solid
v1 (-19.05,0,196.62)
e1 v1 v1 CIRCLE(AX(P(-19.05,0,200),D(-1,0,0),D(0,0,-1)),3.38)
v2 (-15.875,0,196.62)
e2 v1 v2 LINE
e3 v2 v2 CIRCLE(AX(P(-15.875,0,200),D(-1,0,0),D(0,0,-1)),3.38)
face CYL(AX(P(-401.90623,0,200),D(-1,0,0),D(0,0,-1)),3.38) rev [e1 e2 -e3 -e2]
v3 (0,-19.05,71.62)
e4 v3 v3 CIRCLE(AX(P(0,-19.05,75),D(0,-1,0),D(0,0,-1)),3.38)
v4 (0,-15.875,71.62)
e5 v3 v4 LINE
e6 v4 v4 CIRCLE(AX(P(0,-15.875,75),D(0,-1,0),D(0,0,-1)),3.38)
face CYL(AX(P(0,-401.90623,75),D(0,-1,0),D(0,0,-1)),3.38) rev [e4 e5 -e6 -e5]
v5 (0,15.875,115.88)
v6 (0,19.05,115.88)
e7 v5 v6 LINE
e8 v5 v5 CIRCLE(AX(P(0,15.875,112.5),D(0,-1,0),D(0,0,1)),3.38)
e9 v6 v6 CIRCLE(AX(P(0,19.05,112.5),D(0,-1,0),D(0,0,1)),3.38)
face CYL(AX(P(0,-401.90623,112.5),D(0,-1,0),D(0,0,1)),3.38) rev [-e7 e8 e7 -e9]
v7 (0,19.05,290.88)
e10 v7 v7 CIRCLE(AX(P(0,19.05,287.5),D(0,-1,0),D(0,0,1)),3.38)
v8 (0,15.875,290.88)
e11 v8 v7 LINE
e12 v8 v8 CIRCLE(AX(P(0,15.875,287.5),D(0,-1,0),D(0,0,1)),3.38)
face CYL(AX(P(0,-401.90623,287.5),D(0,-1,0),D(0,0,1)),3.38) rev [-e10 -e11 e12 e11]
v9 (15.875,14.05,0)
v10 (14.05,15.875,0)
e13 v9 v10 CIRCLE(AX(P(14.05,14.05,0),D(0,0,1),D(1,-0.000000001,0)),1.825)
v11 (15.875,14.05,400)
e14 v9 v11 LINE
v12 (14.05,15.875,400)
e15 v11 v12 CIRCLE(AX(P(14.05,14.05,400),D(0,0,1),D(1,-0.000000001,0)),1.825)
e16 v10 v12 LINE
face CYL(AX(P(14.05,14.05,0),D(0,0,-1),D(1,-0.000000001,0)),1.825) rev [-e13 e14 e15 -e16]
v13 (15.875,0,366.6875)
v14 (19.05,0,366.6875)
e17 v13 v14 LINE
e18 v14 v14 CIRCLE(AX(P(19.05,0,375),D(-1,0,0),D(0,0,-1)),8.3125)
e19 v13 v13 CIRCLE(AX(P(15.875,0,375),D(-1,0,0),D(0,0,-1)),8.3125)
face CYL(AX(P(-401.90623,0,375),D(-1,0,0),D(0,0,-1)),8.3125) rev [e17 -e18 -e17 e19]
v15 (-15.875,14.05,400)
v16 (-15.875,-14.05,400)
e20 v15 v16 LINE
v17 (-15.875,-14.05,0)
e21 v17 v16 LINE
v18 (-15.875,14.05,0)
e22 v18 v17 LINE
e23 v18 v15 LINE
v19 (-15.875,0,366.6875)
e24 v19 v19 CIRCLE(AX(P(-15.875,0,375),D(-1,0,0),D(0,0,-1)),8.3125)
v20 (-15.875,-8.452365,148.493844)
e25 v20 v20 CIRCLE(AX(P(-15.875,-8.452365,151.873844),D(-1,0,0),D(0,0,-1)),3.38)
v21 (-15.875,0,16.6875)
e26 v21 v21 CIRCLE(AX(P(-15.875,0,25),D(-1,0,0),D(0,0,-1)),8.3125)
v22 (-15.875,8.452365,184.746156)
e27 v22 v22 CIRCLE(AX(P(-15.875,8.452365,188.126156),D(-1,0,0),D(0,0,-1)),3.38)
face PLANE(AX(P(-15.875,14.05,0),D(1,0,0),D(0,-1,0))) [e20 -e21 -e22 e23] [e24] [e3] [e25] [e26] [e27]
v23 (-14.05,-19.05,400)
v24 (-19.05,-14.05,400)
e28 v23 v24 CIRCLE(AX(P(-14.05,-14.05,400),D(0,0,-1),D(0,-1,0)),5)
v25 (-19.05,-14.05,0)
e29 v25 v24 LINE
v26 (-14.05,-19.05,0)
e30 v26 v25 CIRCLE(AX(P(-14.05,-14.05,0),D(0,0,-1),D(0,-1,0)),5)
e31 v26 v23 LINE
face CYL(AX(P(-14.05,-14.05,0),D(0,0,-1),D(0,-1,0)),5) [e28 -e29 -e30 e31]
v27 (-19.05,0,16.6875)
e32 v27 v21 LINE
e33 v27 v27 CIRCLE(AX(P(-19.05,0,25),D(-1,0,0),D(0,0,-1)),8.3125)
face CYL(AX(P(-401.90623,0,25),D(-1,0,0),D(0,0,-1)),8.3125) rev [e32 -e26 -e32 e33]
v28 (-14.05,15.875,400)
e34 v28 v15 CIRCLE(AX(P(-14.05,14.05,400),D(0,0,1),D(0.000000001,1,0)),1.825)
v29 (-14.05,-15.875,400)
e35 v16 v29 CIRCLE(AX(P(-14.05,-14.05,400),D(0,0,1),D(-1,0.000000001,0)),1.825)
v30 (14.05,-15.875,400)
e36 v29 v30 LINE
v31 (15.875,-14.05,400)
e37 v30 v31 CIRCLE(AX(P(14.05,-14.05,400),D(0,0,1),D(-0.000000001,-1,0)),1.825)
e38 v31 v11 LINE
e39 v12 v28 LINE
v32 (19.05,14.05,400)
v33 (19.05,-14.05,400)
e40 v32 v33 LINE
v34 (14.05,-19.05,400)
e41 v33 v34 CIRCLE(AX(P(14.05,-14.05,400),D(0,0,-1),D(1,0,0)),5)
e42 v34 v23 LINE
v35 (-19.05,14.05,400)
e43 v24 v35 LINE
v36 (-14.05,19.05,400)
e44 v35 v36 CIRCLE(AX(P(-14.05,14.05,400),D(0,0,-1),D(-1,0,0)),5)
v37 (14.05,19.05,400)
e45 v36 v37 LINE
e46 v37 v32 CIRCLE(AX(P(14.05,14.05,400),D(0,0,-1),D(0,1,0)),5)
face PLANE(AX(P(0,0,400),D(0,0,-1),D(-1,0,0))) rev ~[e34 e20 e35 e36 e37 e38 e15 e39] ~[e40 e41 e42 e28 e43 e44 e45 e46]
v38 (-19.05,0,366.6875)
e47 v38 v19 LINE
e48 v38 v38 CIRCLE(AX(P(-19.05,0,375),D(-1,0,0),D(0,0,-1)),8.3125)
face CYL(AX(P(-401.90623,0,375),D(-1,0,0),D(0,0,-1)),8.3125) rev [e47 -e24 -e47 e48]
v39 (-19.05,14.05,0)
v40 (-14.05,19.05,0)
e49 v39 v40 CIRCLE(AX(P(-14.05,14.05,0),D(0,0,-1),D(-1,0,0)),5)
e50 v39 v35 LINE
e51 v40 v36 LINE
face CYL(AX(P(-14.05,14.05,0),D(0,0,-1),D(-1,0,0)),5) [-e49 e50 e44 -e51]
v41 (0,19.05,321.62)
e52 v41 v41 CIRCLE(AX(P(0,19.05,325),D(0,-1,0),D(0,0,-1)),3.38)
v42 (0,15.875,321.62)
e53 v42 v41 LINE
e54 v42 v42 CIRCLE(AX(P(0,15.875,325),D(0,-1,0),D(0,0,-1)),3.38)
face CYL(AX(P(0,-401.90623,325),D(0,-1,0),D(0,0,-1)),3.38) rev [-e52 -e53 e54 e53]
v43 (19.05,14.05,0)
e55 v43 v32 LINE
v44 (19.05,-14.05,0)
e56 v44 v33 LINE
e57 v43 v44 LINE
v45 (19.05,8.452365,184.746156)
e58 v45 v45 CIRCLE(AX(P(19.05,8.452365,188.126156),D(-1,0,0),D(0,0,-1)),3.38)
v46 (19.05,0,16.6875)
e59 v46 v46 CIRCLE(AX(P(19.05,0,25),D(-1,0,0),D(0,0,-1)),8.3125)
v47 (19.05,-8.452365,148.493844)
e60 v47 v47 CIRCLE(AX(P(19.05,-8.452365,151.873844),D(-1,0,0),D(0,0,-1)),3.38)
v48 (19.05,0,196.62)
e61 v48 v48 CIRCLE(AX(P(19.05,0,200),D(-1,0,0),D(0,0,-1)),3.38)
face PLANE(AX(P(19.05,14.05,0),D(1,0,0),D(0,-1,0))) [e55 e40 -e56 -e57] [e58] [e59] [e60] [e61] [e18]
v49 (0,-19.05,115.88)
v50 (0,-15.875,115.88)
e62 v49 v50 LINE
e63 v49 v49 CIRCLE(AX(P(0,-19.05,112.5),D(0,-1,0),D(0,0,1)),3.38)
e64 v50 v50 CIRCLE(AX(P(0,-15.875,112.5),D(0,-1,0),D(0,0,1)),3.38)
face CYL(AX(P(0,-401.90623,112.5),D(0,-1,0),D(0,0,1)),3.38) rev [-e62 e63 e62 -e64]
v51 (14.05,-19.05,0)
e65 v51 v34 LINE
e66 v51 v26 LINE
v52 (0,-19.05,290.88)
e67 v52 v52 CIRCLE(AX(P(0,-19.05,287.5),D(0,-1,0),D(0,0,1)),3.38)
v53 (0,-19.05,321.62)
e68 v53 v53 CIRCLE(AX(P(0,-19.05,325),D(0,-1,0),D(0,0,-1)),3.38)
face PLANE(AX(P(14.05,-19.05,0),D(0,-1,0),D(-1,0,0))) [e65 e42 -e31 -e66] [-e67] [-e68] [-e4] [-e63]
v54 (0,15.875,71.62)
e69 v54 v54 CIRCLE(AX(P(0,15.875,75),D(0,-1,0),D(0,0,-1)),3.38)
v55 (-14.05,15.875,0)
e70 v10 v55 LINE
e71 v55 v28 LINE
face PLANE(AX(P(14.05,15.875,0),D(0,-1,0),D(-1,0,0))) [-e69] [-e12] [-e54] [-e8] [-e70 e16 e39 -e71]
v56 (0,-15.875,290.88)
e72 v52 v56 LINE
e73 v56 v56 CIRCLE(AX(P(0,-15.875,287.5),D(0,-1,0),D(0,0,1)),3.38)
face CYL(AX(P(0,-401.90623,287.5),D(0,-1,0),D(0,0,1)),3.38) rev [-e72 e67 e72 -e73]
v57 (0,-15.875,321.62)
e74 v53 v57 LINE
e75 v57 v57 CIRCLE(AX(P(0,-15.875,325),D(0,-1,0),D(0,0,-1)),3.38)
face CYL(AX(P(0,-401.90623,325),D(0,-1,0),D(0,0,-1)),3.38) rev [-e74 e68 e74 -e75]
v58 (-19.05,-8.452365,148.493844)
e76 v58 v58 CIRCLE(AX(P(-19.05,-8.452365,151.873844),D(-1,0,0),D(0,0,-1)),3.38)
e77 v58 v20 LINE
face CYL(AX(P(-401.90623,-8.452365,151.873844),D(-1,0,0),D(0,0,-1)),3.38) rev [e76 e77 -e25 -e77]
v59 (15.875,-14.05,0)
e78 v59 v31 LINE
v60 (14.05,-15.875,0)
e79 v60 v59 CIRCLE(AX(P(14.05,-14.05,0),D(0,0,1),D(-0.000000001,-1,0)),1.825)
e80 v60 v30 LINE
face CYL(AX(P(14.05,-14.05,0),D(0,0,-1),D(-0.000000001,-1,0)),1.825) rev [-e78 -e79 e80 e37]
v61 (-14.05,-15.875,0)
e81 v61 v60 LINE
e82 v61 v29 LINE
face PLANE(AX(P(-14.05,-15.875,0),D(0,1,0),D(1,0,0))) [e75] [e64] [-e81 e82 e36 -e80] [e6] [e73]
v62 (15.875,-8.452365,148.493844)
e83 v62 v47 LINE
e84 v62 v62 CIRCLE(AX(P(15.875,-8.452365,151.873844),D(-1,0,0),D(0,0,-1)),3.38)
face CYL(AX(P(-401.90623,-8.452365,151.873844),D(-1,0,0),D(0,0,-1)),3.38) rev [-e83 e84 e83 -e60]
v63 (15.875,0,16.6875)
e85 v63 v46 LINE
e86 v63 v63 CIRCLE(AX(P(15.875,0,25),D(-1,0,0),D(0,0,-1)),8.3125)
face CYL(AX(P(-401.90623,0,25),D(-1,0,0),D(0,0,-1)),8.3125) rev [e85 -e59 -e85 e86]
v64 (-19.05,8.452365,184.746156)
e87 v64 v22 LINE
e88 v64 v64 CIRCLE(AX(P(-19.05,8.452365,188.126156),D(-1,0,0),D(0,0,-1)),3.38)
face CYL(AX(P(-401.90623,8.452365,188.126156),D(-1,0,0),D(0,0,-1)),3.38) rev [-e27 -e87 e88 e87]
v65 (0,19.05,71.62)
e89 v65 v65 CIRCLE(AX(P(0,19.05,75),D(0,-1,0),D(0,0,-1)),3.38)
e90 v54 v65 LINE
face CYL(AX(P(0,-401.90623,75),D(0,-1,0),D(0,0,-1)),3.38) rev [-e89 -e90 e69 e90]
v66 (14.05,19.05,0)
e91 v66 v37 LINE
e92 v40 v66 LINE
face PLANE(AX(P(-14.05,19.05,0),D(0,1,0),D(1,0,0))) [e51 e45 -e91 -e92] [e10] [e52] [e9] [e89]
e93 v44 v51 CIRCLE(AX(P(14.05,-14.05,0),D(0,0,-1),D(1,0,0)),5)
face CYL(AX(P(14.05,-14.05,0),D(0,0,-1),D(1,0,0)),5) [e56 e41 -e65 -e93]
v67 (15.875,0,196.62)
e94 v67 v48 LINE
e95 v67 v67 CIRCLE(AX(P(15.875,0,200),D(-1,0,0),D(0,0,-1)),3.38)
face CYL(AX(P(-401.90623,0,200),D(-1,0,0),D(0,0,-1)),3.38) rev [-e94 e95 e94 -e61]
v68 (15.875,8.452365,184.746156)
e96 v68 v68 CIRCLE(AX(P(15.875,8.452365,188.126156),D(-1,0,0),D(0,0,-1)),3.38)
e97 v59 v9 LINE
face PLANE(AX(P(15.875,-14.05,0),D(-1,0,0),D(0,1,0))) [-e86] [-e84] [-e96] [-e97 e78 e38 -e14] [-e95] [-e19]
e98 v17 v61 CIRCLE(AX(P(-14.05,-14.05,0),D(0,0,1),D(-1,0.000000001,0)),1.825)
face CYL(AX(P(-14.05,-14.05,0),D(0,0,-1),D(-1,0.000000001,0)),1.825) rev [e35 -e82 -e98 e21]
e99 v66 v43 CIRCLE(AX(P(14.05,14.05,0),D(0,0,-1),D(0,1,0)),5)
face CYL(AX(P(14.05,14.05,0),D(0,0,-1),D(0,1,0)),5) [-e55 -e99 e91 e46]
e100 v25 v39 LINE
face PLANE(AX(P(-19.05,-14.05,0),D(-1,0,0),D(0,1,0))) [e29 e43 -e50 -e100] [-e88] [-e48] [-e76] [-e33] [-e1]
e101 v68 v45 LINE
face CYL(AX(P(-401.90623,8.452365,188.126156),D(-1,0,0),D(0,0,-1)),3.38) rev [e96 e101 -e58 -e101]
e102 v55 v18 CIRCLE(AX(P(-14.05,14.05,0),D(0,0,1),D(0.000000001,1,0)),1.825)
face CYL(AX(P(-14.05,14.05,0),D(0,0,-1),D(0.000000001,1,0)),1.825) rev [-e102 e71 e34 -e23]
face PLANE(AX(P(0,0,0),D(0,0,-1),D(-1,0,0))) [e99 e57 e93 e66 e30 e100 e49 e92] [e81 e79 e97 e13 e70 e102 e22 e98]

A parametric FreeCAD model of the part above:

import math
import FreeCAD as App
import Part
import Sketcher
Q = App.Units.Quantity

doc = App.newDocument("Part")
params = doc.addObject("Spreadsheet::Sheet", "Params")
for row, (alias, value) in enumerate([
    ("sketch1_radius", "5 mm"),
    ("sketch1_width", "28.1 mm"),
    ("pad1_length", "400 mm"),
    ("sketch3_diameter", "6.76 mm"),
    ("sketch4_diameter", "6.76 mm"),
    ("sketch5_diameter", "6.76 mm"),
    ("sketch6_diameter", "6.76 mm"),
], start=1):
    params.set(f"A{row}", alias)
    params.set(f"B{row}", "=" + value)
    params.setAlias(f"B{row}", alias)

body = doc.addObject("PartDesign::Body", "Body")

# Sketch on XY plane
sketch1 = body.newObject("Sketcher::SketchObject", "Sketch")
sketch1.AttachmentSupport = (doc.getObject("XY_Plane"), [""])
sketch1.MapMode = "FlatFace"
sketch1.addGeometry([
    Part.LineSegment(App.Vector(14.1, 19.1, 0), App.Vector(-14.1, 19.1, 0)),  # 0
    Part.ArcOfCircle(Part.Circle(App.Vector(-14.1, 14.1, 0), App.Vector(0, 0, 1), 5), math.radians(90), math.radians(180)),  # 1
    Part.LineSegment(App.Vector(-19.1, 14.1, 0), App.Vector(-19.1, -14.1, 0)),  # 2
    Part.ArcOfCircle(Part.Circle(App.Vector(-14.1, -14.1, 0), App.Vector(0, 0, 1), 5), math.radians(180), math.radians(270)),  # 3
    Part.LineSegment(App.Vector(-14.1, -19.1, 0), App.Vector(14.1, -19.1, 0)),  # 4
    Part.ArcOfCircle(Part.Circle(App.Vector(14.1, -14.1, 0), App.Vector(0, 0, 1), 5), math.radians(-90), math.radians(0)),  # 5
    Part.LineSegment(App.Vector(19.1, -14.1, 0), App.Vector(19.1, 14.1, 0)),  # 6
    Part.ArcOfCircle(Part.Circle(App.Vector(14.1, 14.1, 0), App.Vector(0, 0, 1), 5), math.radians(0), math.radians(90)),  # 7
    Part.ArcOfCircle(Part.Circle(App.Vector(-14.1, 14.1, 0), App.Vector(0, 0, 1), 1.8), math.radians(90), math.radians(180)),  # 8
    Part.LineSegment(App.Vector(-14.1, 15.9, 0), App.Vector(14.1, 15.9, 0)),  # 9
    Part.ArcOfCircle(Part.Circle(App.Vector(14.1, 14.1, 0), App.Vector(0, 0, 1), 1.8), math.radians(0), math.radians(90)),  # 10
    Part.LineSegment(App.Vector(15.9, 14.1, 0), App.Vector(15.9, -14.1, 0)),  # 11
    Part.ArcOfCircle(Part.Circle(App.Vector(14.1, -14.1, 0), App.Vector(0, 0, 1), 1.8), math.radians(-90), math.radians(0)),  # 12
    Part.LineSegment(App.Vector(14.1, -15.9, 0), App.Vector(-14.1, -15.9, 0)),  # 13
    Part.ArcOfCircle(Part.Circle(App.Vector(-14.1, -14.1, 0), App.Vector(0, 0, 1), 1.8), math.radians(180), math.radians(270)),  # 14
    Part.LineSegment(App.Vector(-15.9, -14.1, 0), App.Vector(-15.9, 14.1, 0)),  # 15
], False)
sketch1.addConstraint([
    Sketcher.Constraint("Tangent", 0, 2, 1, 1),
    Sketcher.Constraint("Tangent", 1, 2, 2, 1),
    Sketcher.Constraint("Tangent", 2, 2, 3, 1),
    Sketcher.Constraint("Tangent", 3, 2, 4, 1),
    Sketcher.Constraint("Tangent", 4, 2, 5, 1),
    Sketcher.Constraint("Tangent", 5, 2, 6, 1),
    Sketcher.Constraint("Tangent", 6, 2, 7, 1),
    Sketcher.Constraint("Tangent", 7, 2, 0, 1),
    Sketcher.Constraint("Tangent", 8, 1, 9, 1),
    Sketcher.Constraint("Tangent", 9, 2, 10, 2),
    Sketcher.Constraint("Tangent", 10, 1, 11, 1),
    Sketcher.Constraint("Tangent", 11, 2, 12, 2),
    Sketcher.Constraint("Tangent", 12, 1, 13, 1),
    Sketcher.Constraint("Tangent", 13, 2, 14, 2),
    Sketcher.Constraint("Tangent", 14, 1, 15, 1),
    Sketcher.Constraint("Tangent", 15, 2, 8, 2),
    Sketcher.Constraint("Horizontal", 0),
    Sketcher.Constraint("Vertical", 2),
    Sketcher.Constraint("Horizontal", 4),
    Sketcher.Constraint("Vertical", 6),
    Sketcher.Constraint("Horizontal", 9),
    Sketcher.Constraint("Vertical", 11),
    Sketcher.Constraint("Horizontal", 13),
    Sketcher.Constraint("Vertical", 15),
    Sketcher.Constraint("Coincident", 8, 3, 1, 3),
    Sketcher.Constraint("Coincident", 10, 3, 7, 3),
    Sketcher.Constraint("Coincident", 12, 3, 5, 3),
    Sketcher.Constraint("Equal", 1, 3),
    Sketcher.Constraint("Equal", 3, 5),
    Sketcher.Constraint("Equal", 5, 7),
    Sketcher.Constraint("Equal", 12, 14),
    Sketcher.Constraint("Symmetric", 1, 3, 5, 3, -1, 1),
    Sketcher.Constraint("Equal", 13, 2),
    Sketcher.Constraint("Radius", 1, Q("5 mm")),
    Sketcher.Constraint("DistanceX", 0, 2, 0, 1, Q("28.1 mm")),
    Sketcher.Constraint("Radius", 8, Q("1.825 mm")),
])
sketch1.setExpression("Constraints[33]", "Params.sketch1_radius")
sketch1.setExpression("Constraints[34]", "Params.sketch1_width")
pad1 = body.newObject("PartDesign::Pad", "Pad")
pad1.Profile = sketch1
pad1.setExpression("Length", "Params.pad1_length")

# Sketch on YZ plane
sketch2 = body.newObject("Sketcher::SketchObject", "Sketch001")
sketch2.AttachmentSupport = (doc.getObject("YZ_Plane"), [""])
sketch2.MapMode = "FlatFace"
sketch2.addGeometry([
    Part.Circle(App.Vector(0, 375, 0), App.Vector(0, 0, 1), 8),
    Part.Circle(App.Vector(0, 25, 0), App.Vector(0, 0, 1), 8),
], False)
sketch2.addConstraint([
    Sketcher.Constraint("Equal", 0, 1),
    Sketcher.Constraint("PointOnObject", 0, 3, -2),
    Sketcher.Constraint("PointOnObject", 1, 3, -2),
    Sketcher.Constraint("Diameter", 0, Q("16.625 mm")),
    Sketcher.Constraint("DistanceY", -1, 1, 0, 3, Q("375 mm")),
    Sketcher.Constraint("DistanceY", -1, 1, 1, 3, Q("25 mm")),
])
pocket1 = body.newObject("PartDesign::Pocket", "Pocket")
pocket1.Profile = sketch2
pocket1.Type = "ThroughAll"
pocket1.Midplane = True

# Sketch on XZ plane
sketch3 = body.newObject("Sketcher::SketchObject", "Sketch002")
sketch3.AttachmentSupport = (doc.getObject("XZ_Plane"), [""])
sketch3.MapMode = "FlatFace"
sketch3.addGeometry([
    Part.Circle(App.Vector(0, 325, 0), App.Vector(0, 0, 1), 3.4),
    Part.Circle(App.Vector(0, 75, 0), App.Vector(0, 0, 1), 3.4),
], False)
sketch3.addConstraint([
    Sketcher.Constraint("Equal", 0, 1),
    Sketcher.Constraint("PointOnObject", 0, 3, -2),
    Sketcher.Constraint("PointOnObject", 1, 3, -2),
    Sketcher.Constraint("Diameter", 0, Q("6.76 mm")),
    Sketcher.Constraint("DistanceY", -1, 1, 0, 3, Q("325 mm")),
    Sketcher.Constraint("DistanceY", -1, 1, 1, 3, Q("75 mm")),
])
sketch3.setExpression("Constraints[3]", "Params.sketch3_diameter")
pocket2 = body.newObject("PartDesign::Pocket", "Pocket001")
pocket2.Profile = sketch3
pocket2.Type = "ThroughAll"
pocket2.Midplane = True

# Sketch on YZ plane
sketch4 = body.newObject("Sketcher::SketchObject", "Sketch003")
sketch4.AttachmentSupport = (doc.getObject("YZ_Plane"), [""])
sketch4.MapMode = "FlatFace"
sketch4.addGeometry(Part.Circle(App.Vector(0, 200, 0), App.Vector(0, 0, 1), 3.4), False)
sketch4.addConstraint([
    Sketcher.Constraint("PointOnObject", 0, 3, -2),
    Sketcher.Constraint("Diameter", 0, Q("6.76 mm")),
    Sketcher.Constraint("DistanceY", -1, 1, 0, 3, Q("200 mm")),
])
sketch4.setExpression("Constraints[1]", "Params.sketch4_diameter")
pocket3 = body.newObject("PartDesign::Pocket", "Pocket002")
pocket3.Profile = sketch4
pocket3.Type = "ThroughAll"
pocket3.Midplane = True

# Sketch on YZ plane
sketch5 = body.newObject("Sketcher::SketchObject", "Sketch004")
sketch5.AttachmentSupport = (doc.getObject("YZ_Plane"), [""])
sketch5.MapMode = "FlatFace"
sketch5.addGeometry([
    Part.Circle(App.Vector(8.5, 188.1, 0), App.Vector(0, 0, 1), 3.4),
    Part.Circle(App.Vector(-8.5, 151.9, 0), App.Vector(0, 0, 1), 3.4),
], False)
sketch5.addConstraint([
    Sketcher.Constraint("Equal", 0, 1),
    Sketcher.Constraint("Diameter", 0, Q("6.76 mm")),
    Sketcher.Constraint("DistanceX", 1, 3, 0, 3, Q("16.90473 mm")),
    Sketcher.Constraint("DistanceY", 1, 3, 0, 3, Q("36.252311 mm")),
    Sketcher.Constraint("DistanceX", -1, 1, 0, 3, Q("8.452365 mm")),
    Sketcher.Constraint("DistanceY", -1, 1, 0, 3, Q("188.126156 mm")),
])
sketch5.setExpression("Constraints[1]", "Params.sketch5_diameter")
pocket4 = body.newObject("PartDesign::Pocket", "Pocket003")
pocket4.Profile = sketch5
pocket4.Type = "ThroughAll"
pocket4.Midplane = True

# Sketch on XZ plane
sketch6 = body.newObject("Sketcher::SketchObject", "Sketch005")
sketch6.AttachmentSupport = (doc.getObject("XZ_Plane"), [""])
sketch6.MapMode = "FlatFace"
sketch6.addGeometry([
    Part.Circle(App.Vector(0, 112.5, 0), App.Vector(0, 0, 1), 3.4),
    Part.Circle(App.Vector(0, 287.5, 0), App.Vector(0, 0, 1), 3.4),
], False)
sketch6.addConstraint([
    Sketcher.Constraint("Equal", 0, 1),
    Sketcher.Constraint("PointOnObject", 0, 3, -2),
    Sketcher.Constraint("PointOnObject", 1, 3, -2),
    Sketcher.Constraint("Diameter", 0, Q("6.76 mm")),
    Sketcher.Constraint("DistanceY", 0, 3, 1, 3, Q("175 mm")),
    Sketcher.Constraint("DistanceY", -1, 1, 0, 3, Q("112.5 mm")),
])
sketch6.setExpression("Constraints[3]", "Params.sketch6_diameter")
pocket5 = body.newObject("PartDesign::Pocket", "Pocket004")
pocket5.Profile = sketch6
pocket5.Type = "ThroughAll"
pocket5.Midplane = True

doc.recompute()
